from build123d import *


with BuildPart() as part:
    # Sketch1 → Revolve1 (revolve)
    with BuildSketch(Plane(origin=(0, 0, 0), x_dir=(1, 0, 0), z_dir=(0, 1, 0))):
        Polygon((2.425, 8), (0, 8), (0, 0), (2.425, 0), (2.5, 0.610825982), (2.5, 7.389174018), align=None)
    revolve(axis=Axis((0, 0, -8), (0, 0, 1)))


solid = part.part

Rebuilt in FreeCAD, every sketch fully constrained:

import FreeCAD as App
import Part
import Sketcher
Q = App.Units.Quantity

doc = App.newDocument("Part")
body = doc.addObject("PartDesign::Body", "Body")

sketch1 = body.newObject("Sketcher::SketchObject", "Sketch")
sketch1.AttachmentSupport = (doc.getObject("XZ_Plane"), [""])
sketch1.MapMode = "FlatFace"
sketch1.addGeometry([
    Part.LineSegment(App.Vector(2.4, -8, 0), App.Vector(0, -8, 0)),
    Part.LineSegment(App.Vector(0, -8, 0), App.Vector(0, 0, 0)),
    Part.LineSegment(App.Vector(0, 0, 0), App.Vector(2.4, 0, 0)),
    Part.LineSegment(App.Vector(2.4, 0, 0), App.Vector(2.5, -0.6, 0)),
    Part.LineSegment(App.Vector(2.5, -0.6, 0), App.Vector(2.5, -7.4, 0)),
    Part.LineSegment(App.Vector(2.5, -7.4, 0), App.Vector(2.4, -8, 0)),
], False)
sketch1.addConstraint([
    Sketcher.Constraint("Coincident", 0, 2, 1, 1),
    Sketcher.Constraint("Coincident", 1, 2, 2, 1),
    Sketcher.Constraint("Coincident", 2, 2, 3, 1),
    Sketcher.Constraint("Coincident", 3, 2, 4, 1),
    Sketcher.Constraint("Coincident", 4, 2, 5, 1),
    Sketcher.Constraint("Coincident", 5, 2, 0, 1),
    Sketcher.Constraint("Horizontal", 0),
    Sketcher.Constraint("Vertical", 1),
    Sketcher.Constraint("Horizontal", 2),
    Sketcher.Constraint("Vertical", 4),
    Sketcher.Constraint("Coincident", 1, 2, -1, 1),
    Sketcher.Constraint("Vertical", 2, 2, 5, 2),
    Sketcher.Constraint("Equal", 3, 5),
    Sketcher.Constraint("DistanceY", 1, 1, 1, 2, Q("8 mm")),
    Sketcher.Constraint("Angle", 3, Q("-83 deg")),
    Sketcher.Constraint("DistanceX", -1, 1, 3, 2, Q("2.5 mm")),
    Sketcher.Constraint("DistanceX", 0, 2, 0, 1, Q("2.425 mm")),
])
revolution = body.newObject("PartDesign::Revolution", "Revolution")
revolution.Profile = sketch1
revolution.ReferenceAxis = (sketch1, ["V_Axis"])
revolution.Angle = 360

doc.recompute()
